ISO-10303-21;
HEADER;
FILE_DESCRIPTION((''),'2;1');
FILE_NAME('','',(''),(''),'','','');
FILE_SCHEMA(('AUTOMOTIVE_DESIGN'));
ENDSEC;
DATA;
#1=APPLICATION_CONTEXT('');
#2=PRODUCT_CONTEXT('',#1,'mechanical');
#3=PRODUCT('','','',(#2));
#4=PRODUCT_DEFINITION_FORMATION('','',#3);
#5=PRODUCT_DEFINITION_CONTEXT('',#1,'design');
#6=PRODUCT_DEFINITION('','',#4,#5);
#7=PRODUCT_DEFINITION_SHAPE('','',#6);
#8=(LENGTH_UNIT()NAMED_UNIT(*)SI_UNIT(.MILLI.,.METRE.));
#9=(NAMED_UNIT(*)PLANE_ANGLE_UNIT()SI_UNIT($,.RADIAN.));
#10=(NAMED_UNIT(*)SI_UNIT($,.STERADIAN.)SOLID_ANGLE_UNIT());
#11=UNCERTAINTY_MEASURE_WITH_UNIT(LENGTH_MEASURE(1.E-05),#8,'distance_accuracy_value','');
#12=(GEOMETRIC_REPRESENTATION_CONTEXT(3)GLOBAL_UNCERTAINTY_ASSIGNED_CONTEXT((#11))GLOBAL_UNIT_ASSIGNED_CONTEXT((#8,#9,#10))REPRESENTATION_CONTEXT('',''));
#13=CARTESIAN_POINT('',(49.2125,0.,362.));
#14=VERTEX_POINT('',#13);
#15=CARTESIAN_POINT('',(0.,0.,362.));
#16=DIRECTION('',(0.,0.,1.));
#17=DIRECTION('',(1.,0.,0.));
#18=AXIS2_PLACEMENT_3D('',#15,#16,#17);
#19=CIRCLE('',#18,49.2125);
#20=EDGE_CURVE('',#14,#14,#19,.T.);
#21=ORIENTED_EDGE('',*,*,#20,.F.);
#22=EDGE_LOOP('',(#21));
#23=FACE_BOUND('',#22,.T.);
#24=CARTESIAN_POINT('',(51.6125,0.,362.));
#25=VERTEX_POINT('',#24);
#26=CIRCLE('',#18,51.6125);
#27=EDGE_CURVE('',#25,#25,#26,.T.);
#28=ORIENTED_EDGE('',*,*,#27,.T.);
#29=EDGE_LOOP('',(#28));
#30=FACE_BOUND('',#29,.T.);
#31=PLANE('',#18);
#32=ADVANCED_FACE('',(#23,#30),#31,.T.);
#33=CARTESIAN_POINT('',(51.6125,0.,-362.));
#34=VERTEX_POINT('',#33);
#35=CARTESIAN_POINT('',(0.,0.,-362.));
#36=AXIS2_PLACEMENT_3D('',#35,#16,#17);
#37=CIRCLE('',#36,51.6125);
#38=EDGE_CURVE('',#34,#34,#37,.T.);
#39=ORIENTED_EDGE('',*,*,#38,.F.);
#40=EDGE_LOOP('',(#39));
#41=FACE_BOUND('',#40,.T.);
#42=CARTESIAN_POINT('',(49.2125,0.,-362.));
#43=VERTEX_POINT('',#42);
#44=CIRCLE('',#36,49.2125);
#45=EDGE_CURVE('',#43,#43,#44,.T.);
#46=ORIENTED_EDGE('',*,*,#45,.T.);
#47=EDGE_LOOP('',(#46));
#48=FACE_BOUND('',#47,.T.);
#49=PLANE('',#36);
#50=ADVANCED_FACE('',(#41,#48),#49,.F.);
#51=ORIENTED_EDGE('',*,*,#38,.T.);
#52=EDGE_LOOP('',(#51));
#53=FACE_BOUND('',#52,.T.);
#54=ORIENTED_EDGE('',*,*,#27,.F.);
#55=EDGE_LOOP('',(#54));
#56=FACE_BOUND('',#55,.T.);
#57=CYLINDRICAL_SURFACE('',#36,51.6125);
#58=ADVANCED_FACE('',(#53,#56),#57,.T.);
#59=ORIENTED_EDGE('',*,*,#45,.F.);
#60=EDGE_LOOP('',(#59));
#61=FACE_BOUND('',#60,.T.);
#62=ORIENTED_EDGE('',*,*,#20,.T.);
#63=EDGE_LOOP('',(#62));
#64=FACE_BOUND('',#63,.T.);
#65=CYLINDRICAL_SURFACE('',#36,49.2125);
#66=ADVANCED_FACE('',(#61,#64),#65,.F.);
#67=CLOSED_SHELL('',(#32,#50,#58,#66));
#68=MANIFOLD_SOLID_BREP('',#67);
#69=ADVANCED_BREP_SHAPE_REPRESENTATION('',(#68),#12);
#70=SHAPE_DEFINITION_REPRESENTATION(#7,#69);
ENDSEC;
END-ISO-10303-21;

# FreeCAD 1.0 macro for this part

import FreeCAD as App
import Part
import Sketcher

doc = App.newDocument("Part")
body = doc.addObject("PartDesign::Body", "Body")

# Sketch on XY plane
sketch1 = body.newObject("Sketcher::SketchObject", "Sketch")
sketch1.AttachmentSupport = (doc.getObject("XY_Plane"), [""])
sketch1.MapMode = "FlatFace"
sketch1.addGeometry([
    Part.Circle(App.Vector(0, 0, 0), App.Vector(0, 0, 1), 52),
    Part.Circle(App.Vector(0, 0, 0), App.Vector(0, 0, 1), 49),
], False)
sketch1.addConstraint([
    Sketcher.Constraint("Coincident", 0, 3, -1, 1),
    Sketcher.Constraint("Coincident", 1, 3, -1, 1),
    Sketcher.Constraint("Diameter", 0, 103.225),
    Sketcher.Constraint("Diameter", 1, 98.425),
])
pad1 = body.newObject("PartDesign::Pad", "Pad")
pad1.Profile = sketch1
pad1.Type = "TwoLengths"
pad1.Length = 362
pad1.Length2 = 362

doc.recompute()
